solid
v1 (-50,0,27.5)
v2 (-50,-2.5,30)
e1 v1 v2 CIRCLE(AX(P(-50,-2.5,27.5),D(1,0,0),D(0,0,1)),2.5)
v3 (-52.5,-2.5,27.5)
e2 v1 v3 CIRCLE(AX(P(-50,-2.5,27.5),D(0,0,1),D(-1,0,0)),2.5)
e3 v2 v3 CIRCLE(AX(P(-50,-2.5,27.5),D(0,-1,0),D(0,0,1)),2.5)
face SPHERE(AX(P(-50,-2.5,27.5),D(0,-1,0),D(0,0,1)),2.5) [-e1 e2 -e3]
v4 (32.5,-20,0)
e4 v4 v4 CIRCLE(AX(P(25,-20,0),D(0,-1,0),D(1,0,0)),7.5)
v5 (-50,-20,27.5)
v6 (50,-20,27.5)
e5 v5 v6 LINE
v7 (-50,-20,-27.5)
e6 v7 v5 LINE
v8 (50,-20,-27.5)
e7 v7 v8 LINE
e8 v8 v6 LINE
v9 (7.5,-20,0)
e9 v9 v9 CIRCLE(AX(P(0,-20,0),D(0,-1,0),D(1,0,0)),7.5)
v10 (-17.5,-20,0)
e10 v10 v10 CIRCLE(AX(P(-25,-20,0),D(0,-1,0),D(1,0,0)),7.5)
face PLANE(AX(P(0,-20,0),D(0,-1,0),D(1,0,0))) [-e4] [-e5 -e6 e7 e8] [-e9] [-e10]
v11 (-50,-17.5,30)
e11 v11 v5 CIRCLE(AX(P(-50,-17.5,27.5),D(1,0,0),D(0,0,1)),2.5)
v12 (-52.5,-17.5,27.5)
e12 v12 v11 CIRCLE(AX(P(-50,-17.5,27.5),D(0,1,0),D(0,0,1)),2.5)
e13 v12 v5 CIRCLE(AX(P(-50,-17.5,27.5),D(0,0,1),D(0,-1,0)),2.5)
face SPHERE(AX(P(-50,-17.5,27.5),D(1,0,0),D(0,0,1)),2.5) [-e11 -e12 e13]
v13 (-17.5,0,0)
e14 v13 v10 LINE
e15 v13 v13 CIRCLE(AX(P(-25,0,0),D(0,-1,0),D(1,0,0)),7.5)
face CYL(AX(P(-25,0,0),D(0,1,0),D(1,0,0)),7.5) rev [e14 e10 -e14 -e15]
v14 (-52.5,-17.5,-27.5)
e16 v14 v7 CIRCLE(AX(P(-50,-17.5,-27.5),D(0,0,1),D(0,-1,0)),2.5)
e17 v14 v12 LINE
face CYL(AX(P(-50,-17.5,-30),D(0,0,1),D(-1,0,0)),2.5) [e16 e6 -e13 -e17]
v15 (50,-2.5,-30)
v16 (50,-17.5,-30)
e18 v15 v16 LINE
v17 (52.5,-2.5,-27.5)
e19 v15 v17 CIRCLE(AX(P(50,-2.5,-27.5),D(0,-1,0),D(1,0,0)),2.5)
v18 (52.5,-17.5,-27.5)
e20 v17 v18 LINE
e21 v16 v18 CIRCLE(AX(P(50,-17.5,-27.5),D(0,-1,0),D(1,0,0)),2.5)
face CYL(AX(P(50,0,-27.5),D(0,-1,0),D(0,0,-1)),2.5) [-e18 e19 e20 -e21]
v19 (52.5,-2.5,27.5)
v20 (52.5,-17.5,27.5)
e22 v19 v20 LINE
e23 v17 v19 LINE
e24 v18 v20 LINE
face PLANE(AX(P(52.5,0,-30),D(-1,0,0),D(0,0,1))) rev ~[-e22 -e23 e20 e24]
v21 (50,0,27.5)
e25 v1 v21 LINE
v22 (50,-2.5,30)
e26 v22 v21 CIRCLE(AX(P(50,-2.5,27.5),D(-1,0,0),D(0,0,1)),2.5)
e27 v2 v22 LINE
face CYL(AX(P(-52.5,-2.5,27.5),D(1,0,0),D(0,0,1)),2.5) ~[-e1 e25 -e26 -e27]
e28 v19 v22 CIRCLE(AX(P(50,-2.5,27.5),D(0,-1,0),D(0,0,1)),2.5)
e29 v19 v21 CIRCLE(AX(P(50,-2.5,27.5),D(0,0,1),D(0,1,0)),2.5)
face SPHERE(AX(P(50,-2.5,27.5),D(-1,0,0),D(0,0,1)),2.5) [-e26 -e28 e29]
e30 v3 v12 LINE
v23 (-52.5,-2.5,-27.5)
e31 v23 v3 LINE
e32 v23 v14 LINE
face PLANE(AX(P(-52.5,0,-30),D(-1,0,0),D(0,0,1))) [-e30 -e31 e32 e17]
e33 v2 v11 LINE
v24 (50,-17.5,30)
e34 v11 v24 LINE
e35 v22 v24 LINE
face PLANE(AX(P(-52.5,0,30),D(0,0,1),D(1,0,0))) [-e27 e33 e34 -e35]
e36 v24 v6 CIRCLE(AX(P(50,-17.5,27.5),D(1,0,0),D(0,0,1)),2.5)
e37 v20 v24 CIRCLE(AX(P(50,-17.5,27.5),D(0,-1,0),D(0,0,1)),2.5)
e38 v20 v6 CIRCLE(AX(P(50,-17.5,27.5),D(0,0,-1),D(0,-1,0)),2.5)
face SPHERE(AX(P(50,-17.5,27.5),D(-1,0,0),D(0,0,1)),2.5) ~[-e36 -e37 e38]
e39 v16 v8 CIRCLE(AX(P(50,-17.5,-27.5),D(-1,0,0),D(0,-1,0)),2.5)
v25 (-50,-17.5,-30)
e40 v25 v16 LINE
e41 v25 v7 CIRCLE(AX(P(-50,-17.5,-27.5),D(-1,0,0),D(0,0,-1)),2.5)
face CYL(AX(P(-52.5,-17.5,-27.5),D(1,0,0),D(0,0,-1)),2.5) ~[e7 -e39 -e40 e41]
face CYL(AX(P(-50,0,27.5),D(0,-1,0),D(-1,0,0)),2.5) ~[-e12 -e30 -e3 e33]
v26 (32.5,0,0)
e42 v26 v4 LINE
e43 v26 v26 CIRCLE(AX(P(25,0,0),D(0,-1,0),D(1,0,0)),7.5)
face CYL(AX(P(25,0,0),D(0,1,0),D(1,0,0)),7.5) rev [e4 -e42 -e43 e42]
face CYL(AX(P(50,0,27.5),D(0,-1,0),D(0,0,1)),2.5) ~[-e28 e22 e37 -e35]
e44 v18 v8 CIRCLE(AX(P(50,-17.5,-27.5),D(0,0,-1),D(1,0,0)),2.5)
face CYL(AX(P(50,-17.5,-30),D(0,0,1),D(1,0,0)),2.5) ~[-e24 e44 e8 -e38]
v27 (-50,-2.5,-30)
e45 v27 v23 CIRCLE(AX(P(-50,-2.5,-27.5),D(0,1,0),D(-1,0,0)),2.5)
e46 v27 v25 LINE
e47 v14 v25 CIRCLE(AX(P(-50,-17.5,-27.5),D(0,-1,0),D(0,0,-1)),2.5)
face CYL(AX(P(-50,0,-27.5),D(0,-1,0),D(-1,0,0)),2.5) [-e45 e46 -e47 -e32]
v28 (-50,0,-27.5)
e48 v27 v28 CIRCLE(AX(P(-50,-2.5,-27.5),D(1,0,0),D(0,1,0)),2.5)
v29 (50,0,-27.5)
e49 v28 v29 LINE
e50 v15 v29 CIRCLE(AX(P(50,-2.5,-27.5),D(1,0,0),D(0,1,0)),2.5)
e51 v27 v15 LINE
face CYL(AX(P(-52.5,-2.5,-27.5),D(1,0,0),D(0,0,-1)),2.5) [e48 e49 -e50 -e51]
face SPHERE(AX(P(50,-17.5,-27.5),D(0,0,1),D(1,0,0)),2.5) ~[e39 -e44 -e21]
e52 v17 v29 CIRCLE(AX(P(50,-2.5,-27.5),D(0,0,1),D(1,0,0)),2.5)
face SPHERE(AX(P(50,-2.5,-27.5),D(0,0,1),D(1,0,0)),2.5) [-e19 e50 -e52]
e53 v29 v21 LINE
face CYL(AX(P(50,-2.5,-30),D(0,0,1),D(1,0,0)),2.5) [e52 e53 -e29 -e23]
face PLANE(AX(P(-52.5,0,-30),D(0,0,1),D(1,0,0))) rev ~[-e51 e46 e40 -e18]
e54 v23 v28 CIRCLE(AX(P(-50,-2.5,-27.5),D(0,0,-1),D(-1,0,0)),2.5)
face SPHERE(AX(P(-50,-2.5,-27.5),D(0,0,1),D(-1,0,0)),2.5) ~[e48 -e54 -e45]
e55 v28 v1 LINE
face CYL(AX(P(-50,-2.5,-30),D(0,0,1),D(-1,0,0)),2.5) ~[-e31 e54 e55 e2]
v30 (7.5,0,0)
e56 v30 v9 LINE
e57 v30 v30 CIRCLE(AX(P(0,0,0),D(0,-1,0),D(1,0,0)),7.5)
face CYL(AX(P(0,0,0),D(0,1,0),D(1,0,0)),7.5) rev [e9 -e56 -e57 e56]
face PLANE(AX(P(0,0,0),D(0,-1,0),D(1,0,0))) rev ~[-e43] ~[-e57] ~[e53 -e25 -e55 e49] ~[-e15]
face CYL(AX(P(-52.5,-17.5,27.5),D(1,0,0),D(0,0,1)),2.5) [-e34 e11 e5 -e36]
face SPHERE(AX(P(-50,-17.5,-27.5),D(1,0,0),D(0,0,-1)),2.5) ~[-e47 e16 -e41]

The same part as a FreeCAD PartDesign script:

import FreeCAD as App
import Part
import Sketcher
from FreeCAD import Vector


def edges_at(feature, points):
    """Names of the edges that pass closest to the given points."""
    edges = feature.Shape.Edges
    near = lambda p: min(range(len(edges)), key=lambda i: edges[i].distToShape(Part.Vertex(*p))[0])
    return sorted({f"Edge{near(p) + 1}" for p in points})


def add_polygon(sketch, points):
    """Adds a closed chain of lines whose ends are joined by coincident constraints."""
    first, n = sketch.GeometryCount, len(points)
    for a, b in zip(points, points[1:] + points[:1]):
        sketch.addGeometry(Part.LineSegment(App.Vector(*a, 0), App.Vector(*b, 0)), False)
    for i in range(n):
        sketch.addConstraint(Sketcher.Constraint("Coincident", first + i, 2, first + (i + 1) % n, 1))

doc = App.newDocument("Part")
body = doc.addObject("PartDesign::Body", "Body")

# Sketch on XZ plane
sketch1 = doc.addObject("Sketcher::SketchObject", "Sketch")
body.addObject(sketch1)
sketch1.AttachmentSupport = (doc.XZ_Plane, [""])
sketch1.MapMode = "FlatFace"
add_polygon(sketch1, [(-52.5, 30), (-52.5, -30), (52.5, -30), (52.5, 30)])  # lines 0-3
sketch1.addGeometry(Part.Circle(Vector(-25, 0, 0), Vector(0, 0, 1), 7.5), False)  # 4
sketch1.addGeometry(Part.Circle(Vector(0, 0, 0), Vector(0, 0, 1), 7.5), False)  # 5
sketch1.addGeometry(Part.Circle(Vector(25, 0, 0), Vector(0, 0, 1), 7.5), False)  # 6
sketch1.addConstraint(Sketcher.Constraint("Vertical", 0))
sketch1.addConstraint(Sketcher.Constraint("Horizontal", 1))
sketch1.addConstraint(Sketcher.Constraint("Vertical", 2))
sketch1.addConstraint(Sketcher.Constraint("Horizontal", 3))
sketch1.addConstraint(Sketcher.Constraint("Coincident", 5, 3, -1, 1))
sketch1.addConstraint(Sketcher.Constraint("Equal", 4, 5))
sketch1.addConstraint(Sketcher.Constraint("Equal", 5, 6))
sketch1.addConstraint(Sketcher.Constraint("Symmetric", 4, 3, 6, 3, -1, 1))
sketch1.addConstraint(Sketcher.Constraint("Symmetric", 0, 2, 2, 2, -1, 1))
sketch1.addConstraint(Sketcher.Constraint("PointOnObject", 4, 3, -1))
sketch1.addConstraint(Sketcher.Constraint("Diameter", 4, 15.0))
sketch1.addConstraint(Sketcher.Constraint("DistanceX", 1, 1, 1, 2, 105.0))
sketch1.addConstraint(Sketcher.Constraint("DistanceY", 0, 2, 0, 1, 60.0))
sketch1.addConstraint(Sketcher.Constraint("DistanceX", 4, 3, -1, 1, 25.0))
pad1 = doc.addObject("PartDesign::Pad", "Pad")
body.addObject(pad1)
pad1.Profile = sketch1
pad1.Length = 20
doc.recompute()

fillet = doc.addObject("PartDesign::Fillet", "Fillet")
body.addObject(fillet)
fillet.Base = (pad1, edges_at(pad1, [
    (0, -20, 30),
    (-52.5, -10, 30),
    (0, 0, 30),
    (52.5, -10, 30),
    (52.5, -20, 0),
    (52.5, 0, 0),
    (52.5, -10, -30),
    (0, -20, -30),
    (-52.5, 0, 0),
    (-52.5, -10, -30),
    (0, 0, -30),
    (-52.5, -20, 0),
]))
fillet.Radius = 2.5

doc.recompute()
